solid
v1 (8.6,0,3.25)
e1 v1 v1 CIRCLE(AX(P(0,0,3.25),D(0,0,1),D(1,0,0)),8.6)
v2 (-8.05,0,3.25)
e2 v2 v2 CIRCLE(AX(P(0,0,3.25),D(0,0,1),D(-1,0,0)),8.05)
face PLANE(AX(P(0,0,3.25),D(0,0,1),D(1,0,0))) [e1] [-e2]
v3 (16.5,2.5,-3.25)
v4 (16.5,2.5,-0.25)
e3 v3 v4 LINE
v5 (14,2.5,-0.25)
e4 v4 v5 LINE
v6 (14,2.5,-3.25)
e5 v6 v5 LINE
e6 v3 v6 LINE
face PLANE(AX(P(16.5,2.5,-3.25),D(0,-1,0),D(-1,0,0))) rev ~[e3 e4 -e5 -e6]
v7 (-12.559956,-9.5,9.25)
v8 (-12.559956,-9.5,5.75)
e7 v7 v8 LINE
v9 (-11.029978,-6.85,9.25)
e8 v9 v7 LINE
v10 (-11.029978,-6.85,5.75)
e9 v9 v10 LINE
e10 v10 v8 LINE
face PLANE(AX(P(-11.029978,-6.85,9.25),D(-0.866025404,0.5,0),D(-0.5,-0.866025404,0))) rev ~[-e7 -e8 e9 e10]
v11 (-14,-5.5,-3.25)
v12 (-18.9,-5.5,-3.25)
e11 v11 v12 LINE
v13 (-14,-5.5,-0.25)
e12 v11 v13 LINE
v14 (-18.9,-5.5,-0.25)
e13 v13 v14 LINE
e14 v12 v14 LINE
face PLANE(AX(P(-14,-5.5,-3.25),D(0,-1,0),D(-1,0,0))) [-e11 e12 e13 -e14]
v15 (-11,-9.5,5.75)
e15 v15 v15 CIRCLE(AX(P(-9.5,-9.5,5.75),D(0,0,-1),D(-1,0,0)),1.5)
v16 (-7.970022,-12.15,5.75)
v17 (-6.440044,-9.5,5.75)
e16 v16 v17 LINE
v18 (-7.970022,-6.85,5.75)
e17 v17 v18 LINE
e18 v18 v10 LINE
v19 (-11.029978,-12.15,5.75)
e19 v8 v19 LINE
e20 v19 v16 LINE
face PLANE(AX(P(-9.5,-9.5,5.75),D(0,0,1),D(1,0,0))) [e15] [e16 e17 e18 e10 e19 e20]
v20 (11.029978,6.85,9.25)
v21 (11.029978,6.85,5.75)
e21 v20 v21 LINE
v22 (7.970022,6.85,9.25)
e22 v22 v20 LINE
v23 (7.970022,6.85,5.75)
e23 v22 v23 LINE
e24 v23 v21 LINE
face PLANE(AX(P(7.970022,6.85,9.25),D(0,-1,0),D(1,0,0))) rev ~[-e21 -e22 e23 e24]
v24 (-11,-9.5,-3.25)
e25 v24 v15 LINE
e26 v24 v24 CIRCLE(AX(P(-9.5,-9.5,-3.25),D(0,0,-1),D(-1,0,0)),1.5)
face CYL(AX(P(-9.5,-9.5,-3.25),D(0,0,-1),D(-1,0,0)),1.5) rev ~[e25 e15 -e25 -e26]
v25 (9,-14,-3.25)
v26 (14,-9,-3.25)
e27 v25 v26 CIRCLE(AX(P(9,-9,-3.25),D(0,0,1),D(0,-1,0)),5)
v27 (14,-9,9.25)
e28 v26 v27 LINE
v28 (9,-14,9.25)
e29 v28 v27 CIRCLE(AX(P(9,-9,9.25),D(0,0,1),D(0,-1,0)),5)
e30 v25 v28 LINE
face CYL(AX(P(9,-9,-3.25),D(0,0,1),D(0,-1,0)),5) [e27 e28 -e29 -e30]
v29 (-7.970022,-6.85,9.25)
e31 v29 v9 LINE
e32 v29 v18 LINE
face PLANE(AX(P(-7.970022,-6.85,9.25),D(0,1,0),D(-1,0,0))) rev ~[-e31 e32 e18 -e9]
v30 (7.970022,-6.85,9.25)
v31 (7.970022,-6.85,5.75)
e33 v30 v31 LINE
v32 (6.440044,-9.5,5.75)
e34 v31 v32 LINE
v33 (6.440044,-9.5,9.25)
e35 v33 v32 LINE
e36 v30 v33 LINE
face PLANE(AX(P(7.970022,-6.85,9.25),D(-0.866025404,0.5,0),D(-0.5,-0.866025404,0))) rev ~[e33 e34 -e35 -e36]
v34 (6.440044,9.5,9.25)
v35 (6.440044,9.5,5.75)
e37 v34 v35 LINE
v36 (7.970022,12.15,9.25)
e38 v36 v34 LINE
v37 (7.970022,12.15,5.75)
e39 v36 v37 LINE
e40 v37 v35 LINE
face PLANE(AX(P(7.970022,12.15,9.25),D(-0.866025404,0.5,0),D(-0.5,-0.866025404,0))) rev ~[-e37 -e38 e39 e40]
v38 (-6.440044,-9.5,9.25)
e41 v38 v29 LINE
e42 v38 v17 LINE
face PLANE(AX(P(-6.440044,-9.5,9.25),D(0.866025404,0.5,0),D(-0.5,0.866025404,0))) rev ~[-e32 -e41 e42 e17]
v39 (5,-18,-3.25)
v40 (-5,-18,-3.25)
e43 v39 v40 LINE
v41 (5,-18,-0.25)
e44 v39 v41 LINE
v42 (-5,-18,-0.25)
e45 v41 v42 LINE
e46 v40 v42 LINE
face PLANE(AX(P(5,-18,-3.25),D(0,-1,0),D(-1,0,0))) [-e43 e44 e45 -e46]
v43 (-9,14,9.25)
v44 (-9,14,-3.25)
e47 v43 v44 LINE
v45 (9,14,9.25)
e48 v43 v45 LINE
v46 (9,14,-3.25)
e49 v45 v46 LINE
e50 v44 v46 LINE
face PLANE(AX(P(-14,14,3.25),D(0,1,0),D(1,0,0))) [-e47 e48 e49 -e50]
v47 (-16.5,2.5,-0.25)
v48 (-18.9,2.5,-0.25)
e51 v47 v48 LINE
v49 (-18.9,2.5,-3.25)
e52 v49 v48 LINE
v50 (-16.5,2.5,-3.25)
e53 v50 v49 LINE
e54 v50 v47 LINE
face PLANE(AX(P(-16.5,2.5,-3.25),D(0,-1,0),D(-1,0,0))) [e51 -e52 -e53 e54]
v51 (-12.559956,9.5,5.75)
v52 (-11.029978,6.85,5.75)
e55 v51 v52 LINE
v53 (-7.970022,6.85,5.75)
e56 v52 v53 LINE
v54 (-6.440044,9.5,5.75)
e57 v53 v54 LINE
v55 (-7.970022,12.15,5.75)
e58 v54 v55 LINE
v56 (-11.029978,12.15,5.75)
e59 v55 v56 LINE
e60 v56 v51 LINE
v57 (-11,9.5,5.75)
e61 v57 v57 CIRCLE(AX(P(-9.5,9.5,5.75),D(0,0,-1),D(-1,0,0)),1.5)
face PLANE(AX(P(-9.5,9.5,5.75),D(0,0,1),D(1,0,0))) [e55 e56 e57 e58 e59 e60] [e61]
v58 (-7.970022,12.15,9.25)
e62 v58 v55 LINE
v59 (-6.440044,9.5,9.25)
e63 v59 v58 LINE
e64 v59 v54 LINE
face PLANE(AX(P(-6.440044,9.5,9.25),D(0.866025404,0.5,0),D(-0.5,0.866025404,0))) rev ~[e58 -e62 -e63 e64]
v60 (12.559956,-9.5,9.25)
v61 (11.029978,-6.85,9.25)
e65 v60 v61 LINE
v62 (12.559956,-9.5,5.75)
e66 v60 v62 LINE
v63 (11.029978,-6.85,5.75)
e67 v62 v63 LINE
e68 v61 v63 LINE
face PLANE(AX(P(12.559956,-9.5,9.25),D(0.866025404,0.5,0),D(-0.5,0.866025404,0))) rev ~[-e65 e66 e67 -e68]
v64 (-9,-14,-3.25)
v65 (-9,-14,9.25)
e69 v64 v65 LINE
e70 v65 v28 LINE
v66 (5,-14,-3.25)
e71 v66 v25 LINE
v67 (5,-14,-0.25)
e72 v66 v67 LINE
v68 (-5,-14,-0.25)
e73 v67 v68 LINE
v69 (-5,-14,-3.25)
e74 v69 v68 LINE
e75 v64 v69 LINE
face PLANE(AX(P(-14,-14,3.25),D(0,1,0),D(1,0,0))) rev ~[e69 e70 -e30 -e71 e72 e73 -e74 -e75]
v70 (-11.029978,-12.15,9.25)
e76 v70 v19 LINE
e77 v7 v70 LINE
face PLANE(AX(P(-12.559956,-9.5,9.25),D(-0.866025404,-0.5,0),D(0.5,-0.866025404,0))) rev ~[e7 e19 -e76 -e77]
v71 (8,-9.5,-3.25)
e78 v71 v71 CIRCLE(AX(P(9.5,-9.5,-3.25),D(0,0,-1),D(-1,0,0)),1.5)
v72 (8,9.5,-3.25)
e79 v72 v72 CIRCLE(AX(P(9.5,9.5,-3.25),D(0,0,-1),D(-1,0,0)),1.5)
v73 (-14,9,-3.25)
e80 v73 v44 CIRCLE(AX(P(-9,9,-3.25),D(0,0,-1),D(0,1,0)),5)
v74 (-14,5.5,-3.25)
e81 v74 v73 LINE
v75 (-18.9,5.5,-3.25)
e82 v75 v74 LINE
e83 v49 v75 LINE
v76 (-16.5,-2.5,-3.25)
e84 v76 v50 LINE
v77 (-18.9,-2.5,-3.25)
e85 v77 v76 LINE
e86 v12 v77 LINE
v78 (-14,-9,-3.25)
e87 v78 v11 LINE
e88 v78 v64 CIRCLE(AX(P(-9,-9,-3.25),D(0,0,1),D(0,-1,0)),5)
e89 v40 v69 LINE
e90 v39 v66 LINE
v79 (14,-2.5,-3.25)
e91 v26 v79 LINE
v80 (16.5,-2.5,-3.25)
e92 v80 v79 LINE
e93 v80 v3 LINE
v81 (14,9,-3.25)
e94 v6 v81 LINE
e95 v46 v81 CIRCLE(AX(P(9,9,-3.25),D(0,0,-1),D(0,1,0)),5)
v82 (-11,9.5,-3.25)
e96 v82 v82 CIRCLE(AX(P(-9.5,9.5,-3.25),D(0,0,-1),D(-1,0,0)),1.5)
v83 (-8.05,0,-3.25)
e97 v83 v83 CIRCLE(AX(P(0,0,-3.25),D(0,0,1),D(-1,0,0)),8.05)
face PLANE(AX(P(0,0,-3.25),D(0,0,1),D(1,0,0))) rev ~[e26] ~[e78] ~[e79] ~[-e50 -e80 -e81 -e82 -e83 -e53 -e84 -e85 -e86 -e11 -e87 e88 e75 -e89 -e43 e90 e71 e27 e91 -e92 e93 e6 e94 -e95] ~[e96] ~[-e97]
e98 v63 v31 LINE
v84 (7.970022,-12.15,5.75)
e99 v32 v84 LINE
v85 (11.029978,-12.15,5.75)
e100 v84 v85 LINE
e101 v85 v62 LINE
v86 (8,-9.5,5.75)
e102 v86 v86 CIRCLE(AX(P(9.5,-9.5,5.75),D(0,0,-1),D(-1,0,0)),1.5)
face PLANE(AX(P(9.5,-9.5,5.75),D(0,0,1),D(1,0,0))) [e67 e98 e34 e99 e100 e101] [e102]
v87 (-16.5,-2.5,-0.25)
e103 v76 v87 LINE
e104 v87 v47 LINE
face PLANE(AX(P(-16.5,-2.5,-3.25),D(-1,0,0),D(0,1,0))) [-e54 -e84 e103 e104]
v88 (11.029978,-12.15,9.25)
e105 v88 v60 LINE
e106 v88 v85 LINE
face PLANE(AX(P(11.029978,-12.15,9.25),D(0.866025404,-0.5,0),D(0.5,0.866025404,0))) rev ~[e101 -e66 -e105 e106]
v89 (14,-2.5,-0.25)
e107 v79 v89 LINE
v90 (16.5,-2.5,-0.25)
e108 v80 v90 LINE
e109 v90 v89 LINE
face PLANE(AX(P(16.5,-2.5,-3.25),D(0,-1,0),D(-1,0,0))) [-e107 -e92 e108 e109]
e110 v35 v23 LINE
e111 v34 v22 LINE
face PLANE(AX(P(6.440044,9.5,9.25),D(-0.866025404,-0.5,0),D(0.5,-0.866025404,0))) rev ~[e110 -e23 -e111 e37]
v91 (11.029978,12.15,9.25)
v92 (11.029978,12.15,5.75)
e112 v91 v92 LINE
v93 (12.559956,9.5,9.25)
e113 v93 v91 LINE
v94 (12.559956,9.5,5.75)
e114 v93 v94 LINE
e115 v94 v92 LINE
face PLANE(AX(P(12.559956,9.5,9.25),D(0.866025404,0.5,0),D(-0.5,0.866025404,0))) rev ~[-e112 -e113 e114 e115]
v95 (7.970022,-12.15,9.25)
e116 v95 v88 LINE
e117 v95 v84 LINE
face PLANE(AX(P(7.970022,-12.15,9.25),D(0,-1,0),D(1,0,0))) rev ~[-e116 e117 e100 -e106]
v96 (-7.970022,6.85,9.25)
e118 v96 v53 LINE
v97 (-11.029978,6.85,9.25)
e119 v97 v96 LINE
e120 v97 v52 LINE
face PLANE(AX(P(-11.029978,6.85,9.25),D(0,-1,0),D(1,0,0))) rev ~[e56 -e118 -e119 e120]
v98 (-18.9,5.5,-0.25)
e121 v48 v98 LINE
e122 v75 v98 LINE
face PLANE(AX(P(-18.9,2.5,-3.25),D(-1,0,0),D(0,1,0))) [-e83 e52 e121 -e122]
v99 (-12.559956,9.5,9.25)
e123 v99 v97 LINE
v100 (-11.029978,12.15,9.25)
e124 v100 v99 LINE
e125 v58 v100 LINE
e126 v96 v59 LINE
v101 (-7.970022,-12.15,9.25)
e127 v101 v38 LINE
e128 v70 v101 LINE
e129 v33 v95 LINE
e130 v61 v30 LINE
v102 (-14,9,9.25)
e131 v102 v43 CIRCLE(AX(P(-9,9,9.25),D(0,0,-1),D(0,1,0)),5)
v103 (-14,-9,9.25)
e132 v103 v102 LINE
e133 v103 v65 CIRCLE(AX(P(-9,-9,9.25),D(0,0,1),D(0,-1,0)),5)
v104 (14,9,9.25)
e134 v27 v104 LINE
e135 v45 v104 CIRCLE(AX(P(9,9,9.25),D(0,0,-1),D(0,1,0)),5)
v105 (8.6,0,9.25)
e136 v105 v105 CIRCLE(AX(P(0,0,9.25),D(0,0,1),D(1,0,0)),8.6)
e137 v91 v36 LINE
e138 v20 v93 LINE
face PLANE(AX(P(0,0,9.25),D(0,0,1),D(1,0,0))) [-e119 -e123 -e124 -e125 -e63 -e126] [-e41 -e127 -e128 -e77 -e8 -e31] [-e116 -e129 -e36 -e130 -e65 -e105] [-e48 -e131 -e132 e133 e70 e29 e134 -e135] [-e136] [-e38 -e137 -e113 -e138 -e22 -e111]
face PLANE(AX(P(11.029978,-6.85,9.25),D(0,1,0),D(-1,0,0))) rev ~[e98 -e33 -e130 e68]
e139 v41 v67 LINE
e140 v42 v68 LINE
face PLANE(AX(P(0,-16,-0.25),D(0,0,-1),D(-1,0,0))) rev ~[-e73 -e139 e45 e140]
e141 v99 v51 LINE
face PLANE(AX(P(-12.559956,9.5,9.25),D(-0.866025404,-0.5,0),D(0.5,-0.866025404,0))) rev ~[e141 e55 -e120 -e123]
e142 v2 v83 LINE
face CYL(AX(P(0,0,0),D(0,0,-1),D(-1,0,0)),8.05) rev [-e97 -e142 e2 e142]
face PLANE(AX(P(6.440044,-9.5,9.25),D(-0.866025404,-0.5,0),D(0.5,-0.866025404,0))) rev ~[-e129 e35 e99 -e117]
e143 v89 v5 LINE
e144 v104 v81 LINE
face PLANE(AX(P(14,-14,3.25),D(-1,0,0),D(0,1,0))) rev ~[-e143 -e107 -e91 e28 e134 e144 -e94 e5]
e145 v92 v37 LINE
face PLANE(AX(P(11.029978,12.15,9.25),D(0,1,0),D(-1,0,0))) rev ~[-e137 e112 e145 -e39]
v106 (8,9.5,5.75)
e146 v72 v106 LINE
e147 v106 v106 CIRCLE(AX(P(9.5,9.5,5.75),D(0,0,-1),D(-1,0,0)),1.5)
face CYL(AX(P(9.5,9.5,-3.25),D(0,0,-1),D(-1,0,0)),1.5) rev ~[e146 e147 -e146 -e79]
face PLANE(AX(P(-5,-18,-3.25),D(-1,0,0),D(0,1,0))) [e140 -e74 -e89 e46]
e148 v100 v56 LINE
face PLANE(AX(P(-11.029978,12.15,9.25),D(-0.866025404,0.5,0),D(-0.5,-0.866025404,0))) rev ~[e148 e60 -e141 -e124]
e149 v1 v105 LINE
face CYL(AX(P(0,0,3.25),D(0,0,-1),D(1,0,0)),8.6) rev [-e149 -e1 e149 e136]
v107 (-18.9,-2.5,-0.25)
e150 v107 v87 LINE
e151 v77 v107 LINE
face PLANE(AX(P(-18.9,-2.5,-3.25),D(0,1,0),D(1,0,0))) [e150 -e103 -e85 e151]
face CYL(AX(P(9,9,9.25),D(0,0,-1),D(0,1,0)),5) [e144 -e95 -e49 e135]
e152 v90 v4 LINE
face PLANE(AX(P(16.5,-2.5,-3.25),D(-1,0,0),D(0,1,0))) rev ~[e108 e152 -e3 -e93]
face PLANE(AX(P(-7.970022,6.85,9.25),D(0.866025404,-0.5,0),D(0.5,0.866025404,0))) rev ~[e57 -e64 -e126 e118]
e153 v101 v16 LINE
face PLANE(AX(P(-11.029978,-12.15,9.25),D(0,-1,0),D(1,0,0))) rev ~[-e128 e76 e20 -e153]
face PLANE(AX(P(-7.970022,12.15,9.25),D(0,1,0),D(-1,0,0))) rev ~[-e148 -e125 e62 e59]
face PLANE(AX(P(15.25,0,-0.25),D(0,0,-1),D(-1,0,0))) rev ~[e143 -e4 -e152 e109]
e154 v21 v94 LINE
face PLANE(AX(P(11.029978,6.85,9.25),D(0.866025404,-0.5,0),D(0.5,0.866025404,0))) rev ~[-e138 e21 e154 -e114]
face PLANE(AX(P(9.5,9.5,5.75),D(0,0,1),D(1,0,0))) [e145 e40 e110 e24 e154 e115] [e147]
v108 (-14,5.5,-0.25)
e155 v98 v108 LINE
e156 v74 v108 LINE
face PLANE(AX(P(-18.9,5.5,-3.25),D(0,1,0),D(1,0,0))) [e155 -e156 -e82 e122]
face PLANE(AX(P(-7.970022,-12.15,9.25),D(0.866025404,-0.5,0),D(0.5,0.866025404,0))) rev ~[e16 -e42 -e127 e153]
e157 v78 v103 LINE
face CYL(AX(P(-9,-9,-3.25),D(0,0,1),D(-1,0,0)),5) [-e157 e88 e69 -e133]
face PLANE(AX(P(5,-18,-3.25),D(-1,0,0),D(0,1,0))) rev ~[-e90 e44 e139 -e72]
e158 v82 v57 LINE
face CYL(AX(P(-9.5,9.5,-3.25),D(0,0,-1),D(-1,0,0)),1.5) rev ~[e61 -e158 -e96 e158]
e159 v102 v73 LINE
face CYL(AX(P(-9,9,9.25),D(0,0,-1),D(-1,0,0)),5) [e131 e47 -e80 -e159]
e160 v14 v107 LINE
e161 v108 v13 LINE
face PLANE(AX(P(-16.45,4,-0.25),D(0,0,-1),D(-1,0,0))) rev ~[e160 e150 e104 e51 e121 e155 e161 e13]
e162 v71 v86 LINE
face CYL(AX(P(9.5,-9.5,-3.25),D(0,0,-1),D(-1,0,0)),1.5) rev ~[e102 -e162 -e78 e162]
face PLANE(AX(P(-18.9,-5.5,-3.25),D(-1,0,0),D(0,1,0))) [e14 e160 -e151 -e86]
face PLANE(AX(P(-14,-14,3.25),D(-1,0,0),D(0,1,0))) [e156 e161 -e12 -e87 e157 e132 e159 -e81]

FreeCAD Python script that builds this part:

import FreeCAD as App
import Part
import Sketcher

V = App.Vector
Q = App.Units.Quantity


def edges_at(feature, points):
    """Names of the edges that pass closest to the given points."""
    edges = feature.Shape.Edges
    near = lambda p: min(range(len(edges)), key=lambda i: edges[i].distToShape(Part.Vertex(*p))[0])
    return sorted({f"Edge{near(p) + 1}" for p in points})


def add_polygon(sketch, points):
    """Adds a closed chain of lines whose ends are joined by coincident constraints."""
    first, n = sketch.GeometryCount, len(points)
    for a, b in zip(points, points[1:] + points[:1]):
        sketch.addGeometry(Part.LineSegment(App.Vector(*a, 0), App.Vector(*b, 0)), False)
    for i in range(n):
        sketch.addConstraint(Sketcher.Constraint("Coincident", first + i, 2, first + (i + 1) % n, 1))

doc = App.newDocument("Part")
body = doc.addObject("PartDesign::Body", "Body")

# Sketch on XY plane
sketch1 = doc.addObject("Sketcher::SketchObject", "Sketch")
body.addObject(sketch1)
sketch1.AttachmentSupport = (doc.XY_Plane, [""])
sketch1.MapMode = "FlatFace"
add_polygon(sketch1, [(-14, 14), (-14, -14), (14, -14), (14, 14)])  # lines 0-3
sketch1.addGeometry(Part.Circle(V(0, 0, 0), V(0, 0, 1), 8.05), False)  # 4
sketch1.addConstraint([
    Sketcher.Constraint("Vertical", 0),
    Sketcher.Constraint("Horizontal", 1),
    Sketcher.Constraint("Vertical", 2),
    Sketcher.Constraint("Horizontal", 3),
    Sketcher.Constraint("Coincident", 4, 3, -1, 1),
    Sketcher.Constraint("Symmetric", 0, 2, 2, 2, -1, 1),
    Sketcher.Constraint("Equal", 3, 0),
    Sketcher.Constraint("Diameter", 4, 16.1),
    Sketcher.Constraint("DistanceX", 1, 1, 1, 2, 28.0),
])
pad1 = doc.addObject("PartDesign::Pad", "Pad")
body.addObject(pad1)
pad1.Profile = sketch1
pad1.Length = 6.5
pad1.Midplane = True

# Sketch on XY plane
sketch2 = doc.addObject("Sketcher::SketchObject", "Sketch001")
body.addObject(sketch2)
sketch2.AttachmentSupport = (doc.XY_Plane, [""])
sketch2.MapMode = "FlatFace"
sketch2.AttachmentOffset = App.Placement(V(0, 0, 3.25), App.Rotation())
add_polygon(sketch2, [(-14, 14), (-14, -14), (14, -14), (14, 14)])  # lines 0-3
sketch2.addGeometry(Part.Circle(V(0, 0, 0), V(0, 0, 1), 8.6), False)  # 4
sketch2.addConstraint([
    Sketcher.Constraint("Vertical", 0),
    Sketcher.Constraint("Horizontal", 1),
    Sketcher.Constraint("Vertical", 2),
    Sketcher.Constraint("Horizontal", 3),
    Sketcher.Constraint("Coincident", 4, 3, -1, 1),
    Sketcher.Constraint("Symmetric", 0, 2, 2, 2, -1, 1),
    Sketcher.Constraint("Equal", 3, 0),
    Sketcher.Constraint("Diameter", 4, 17.2),
    Sketcher.Constraint("DistanceX", 1, 1, 1, 2, 28.0),
])
pad2 = doc.addObject("PartDesign::Pad", "Pad001")
body.addObject(pad2)
pad2.Profile = sketch2
pad2.Length = 6

# Sketch on XY plane
sketch3 = doc.addObject("Sketcher::SketchObject", "Sketch002")
body.addObject(sketch3)
sketch3.AttachmentSupport = (doc.XY_Plane, [""])
sketch3.MapMode = "FlatFace"
sketch3.AttachmentOffset = App.Placement(V(0, 0, 9.25), App.Rotation())
add_polygon(sketch3, [(11.029978, 12.15), (7.970022, 12.15), (6.440044, 9.5), (7.970022, 6.85), (11.029978, 6.85), (12.559956, 9.5)])  # lines 0-5
add_polygon(sketch3, [(-6.440044, 9.5), (-7.970022, 12.15), (-11.029978, 12.15), (-12.559956, 9.5), (-11.029978, 6.85), (-7.970022, 6.85)])  # lines 6-11
add_polygon(sketch3, [(-7.970022, -6.85), (-11.029978, -6.85), (-12.559956, -9.5), (-11.029978, -12.15), (-7.970022, -12.15), (-6.440044, -9.5)])  # lines 12-17
add_polygon(sketch3, [(11.029978, -6.85), (7.970022, -6.85), (6.440044, -9.5), (7.970022, -12.15), (11.029978, -12.15), (12.559956, -9.5)])  # lines 18-23
sketch3.addConstraint([
    Sketcher.Constraint("Horizontal", 0),
    Sketcher.Constraint("Horizontal", 3),
    Sketcher.Constraint("Horizontal", 7),
    Sketcher.Constraint("Horizontal", 10),
    Sketcher.Constraint("Horizontal", 12),
    Sketcher.Constraint("Horizontal", 15),
    Sketcher.Constraint("Horizontal", 18),
    Sketcher.Constraint("Horizontal", 21),
    Sketcher.Constraint("Symmetric", 3, 2, 12, 2, -1, 1),
    Sketcher.Constraint("Symmetric", 4, 2, 13, 2, -1, 1),
    Sketcher.Constraint("Symmetric", 5, 2, 14, 2, -1, 1),
    Sketcher.Constraint("Symmetric", 1, 2, 16, 2, -1, 1),
    Sketcher.Constraint("Symmetric", 10, 2, 18, 2, -1, 1),
    Sketcher.Constraint("Symmetric", 11, 2, 19, 2, -1, 1),
    Sketcher.Constraint("Symmetric", 6, 2, 20, 2, -1, 1),
    Sketcher.Constraint("Symmetric", 8, 2, 22, 2, -1, 1),
    Sketcher.Constraint("Symmetric", 0, 2, 6, 2, -2),
    Sketcher.Constraint("Symmetric", 4, 2, 8, 2, -2),
    Sketcher.Constraint("Symmetric", 3, 2, 9, 2, -2),
    Sketcher.Constraint("Symmetric", 1, 2, 11, 2, -2),
    Sketcher.Constraint("Parallel", 1, 4),
    Sketcher.Constraint("Parallel", 2, 5),
    Sketcher.Constraint("Parallel", 5, 6),
    Sketcher.Constraint("Parallel", 4, 8),
    Sketcher.Constraint("Parallel", 8, 11),
    Sketcher.Constraint("Parallel", 13, 16),
    Sketcher.Constraint("Parallel", 14, 17),
    Sketcher.Constraint("Parallel", 19, 22),
    Sketcher.Constraint("Parallel", 20, 23),
    Sketcher.Constraint("Horizontal", 1, 2, 4, 2),
    Sketcher.Constraint("Vertical", 0, 2, 2, 2),
    Sketcher.Constraint("Angle", 1, Q("-120 deg")),
    Sketcher.Constraint("DistanceX", 6, 2, 5, 2, 19.0),
    Sketcher.Constraint("DistanceY", 12, 2, 7, 2, 19.0),
    Sketcher.Constraint("DistanceY", 2, 2, 0, 2, 5.3),
    Sketcher.Constraint("DistanceX", 0, 2, 0, 1, 3.059956),
])
pocket1 = doc.addObject("PartDesign::Pocket", "Pocket")
body.addObject(pocket1)
pocket1.Profile = sketch3
pocket1.Length = 3.5

# Sketch on XY plane
sketch4 = doc.addObject("Sketcher::SketchObject", "Sketch003")
body.addObject(sketch4)
sketch4.AttachmentSupport = (doc.XY_Plane, [""])
sketch4.MapMode = "FlatFace"
sketch4.AttachmentOffset = App.Placement(V(0, 0, -3.25), App.Rotation())
sketch4.addGeometry([
    Part.Circle(V(9.5, 9.5, 0), V(0, 0, 1), 1.5),
    Part.Circle(V(-9.5, 9.5, 0), V(0, 0, 1), 1.5),
    Part.Circle(V(-9.5, -9.5, 0), V(0, 0, 1), 1.5),
    Part.Circle(V(9.5, -9.5, 0), V(0, 0, 1), 1.5),
], False)
sketch4.addConstraint([
    Sketcher.Constraint("Equal", 0, 1),
    Sketcher.Constraint("Equal", 1, 2),
    Sketcher.Constraint("Equal", 2, 3),
    Sketcher.Constraint("Symmetric", 0, 3, 2, 3, -1, 1),
    Sketcher.Constraint("Symmetric", 1, 3, 3, 3, -1, 1),
    Sketcher.Constraint("Symmetric", 0, 3, 1, 3, -2),
    Sketcher.Constraint("Diameter", 0, 3.0),
    Sketcher.Constraint("DistanceX", 1, 3, 0, 3, 19.0),
    Sketcher.Constraint("DistanceY", 2, 3, 1, 3, 19.0),
])
pocket2 = doc.addObject("PartDesign::Pocket", "Pocket001")
body.addObject(pocket2)
pocket2.Profile = sketch4
pocket2.Length = 23.5
pocket2.Reversed = True

# Sketch on XY plane
sketch5 = doc.addObject("Sketcher::SketchObject", "Sketch004")
body.addObject(sketch5)
sketch5.AttachmentSupport = (doc.XY_Plane, [""])
sketch5.MapMode = "FlatFace"
sketch5.AttachmentOffset = App.Placement(V(0, 0, -3.25), App.Rotation())
add_polygon(sketch5, [(-14, 5.5), (-14, -5.5), (-18.9, -5.5), (-18.9, -2.5), (-16.5, -2.5), (-16.5, 2.5), (-18.9, 2.5), (-18.9, 5.5)])  # lines 0-7
add_polygon(sketch5, [(5, -14), (5, -18), (-5, -18), (-5, -14)])  # lines 8-11
add_polygon(sketch5, [(16.5, 2.5), (16.5, -2.5), (14, -2.5), (14, 2.5)])  # lines 12-15
sketch5.addConstraint([
    Sketcher.Constraint("Vertical", 0),
    Sketcher.Constraint("Horizontal", 1),
    Sketcher.Constraint("Vertical", 2),
    Sketcher.Constraint("Horizontal", 3),
    Sketcher.Constraint("Vertical", 4),
    Sketcher.Constraint("Horizontal", 5),
    Sketcher.Constraint("Vertical", 6),
    Sketcher.Constraint("Horizontal", 7),
    Sketcher.Constraint("Vertical", 8),
    Sketcher.Constraint("Horizontal", 9),
    Sketcher.Constraint("Vertical", 10),
    Sketcher.Constraint("Horizontal", 11),
    Sketcher.Constraint("Vertical", 12),
    Sketcher.Constraint("Horizontal", 13),
    Sketcher.Constraint("Vertical", 14),
    Sketcher.Constraint("Horizontal", 15),
    Sketcher.Constraint("Symmetric", 4, 2, 12, 2, -1, 1),
    Sketcher.Constraint("Symmetric", 2, 2, 5, 2, -1),
    Sketcher.Constraint("Horizontal", 5, 2, 14, 2),
    Sketcher.Constraint("Equal", 2, 6),
    Sketcher.Constraint("DistanceX", 9, 2, 9, 1, 10.0),
    Sketcher.Constraint("DistanceY", 0, 2, 0, 1, 11.0),
    Sketcher.Constraint("DistanceY", 2, 1, 2, 2, 3.0),
    Sketcher.Constraint("DistanceY", 8, 2, 8, 1, 4.0),
    Sketcher.Constraint("DistanceX", 1, 2, 1, 1, 4.9),
    Sketcher.Constraint("DistanceX", 3, 1, 3, 2, 2.4),
    Sketcher.Constraint("DistanceX", 13, 2, 13, 1, 2.5),
    Sketcher.Constraint("DistanceX", 0, 2, -1, 1, 14.0),
    Sketcher.Constraint("DistanceX", -1, 1, 8, 2, 5.0),
    Sketcher.Constraint("DistanceY", 8, 2, -1, 1, 18.0),
])
pad3 = doc.addObject("PartDesign::Pad", "Pad002")
body.addObject(pad3)
pad3.Profile = sketch5
pad3.Length = 3
doc.recompute()

fillet = doc.addObject("PartDesign::Fillet", "Fillet")
body.addObject(fillet)
fillet.Base = (pad3, edges_at(pad3, [
    (14, -14, 3),
    (-14, -14, 3),
    (-14, 14, 3),
    (14, 14, 3),
]))
fillet.Radius = 5

doc.recompute()
